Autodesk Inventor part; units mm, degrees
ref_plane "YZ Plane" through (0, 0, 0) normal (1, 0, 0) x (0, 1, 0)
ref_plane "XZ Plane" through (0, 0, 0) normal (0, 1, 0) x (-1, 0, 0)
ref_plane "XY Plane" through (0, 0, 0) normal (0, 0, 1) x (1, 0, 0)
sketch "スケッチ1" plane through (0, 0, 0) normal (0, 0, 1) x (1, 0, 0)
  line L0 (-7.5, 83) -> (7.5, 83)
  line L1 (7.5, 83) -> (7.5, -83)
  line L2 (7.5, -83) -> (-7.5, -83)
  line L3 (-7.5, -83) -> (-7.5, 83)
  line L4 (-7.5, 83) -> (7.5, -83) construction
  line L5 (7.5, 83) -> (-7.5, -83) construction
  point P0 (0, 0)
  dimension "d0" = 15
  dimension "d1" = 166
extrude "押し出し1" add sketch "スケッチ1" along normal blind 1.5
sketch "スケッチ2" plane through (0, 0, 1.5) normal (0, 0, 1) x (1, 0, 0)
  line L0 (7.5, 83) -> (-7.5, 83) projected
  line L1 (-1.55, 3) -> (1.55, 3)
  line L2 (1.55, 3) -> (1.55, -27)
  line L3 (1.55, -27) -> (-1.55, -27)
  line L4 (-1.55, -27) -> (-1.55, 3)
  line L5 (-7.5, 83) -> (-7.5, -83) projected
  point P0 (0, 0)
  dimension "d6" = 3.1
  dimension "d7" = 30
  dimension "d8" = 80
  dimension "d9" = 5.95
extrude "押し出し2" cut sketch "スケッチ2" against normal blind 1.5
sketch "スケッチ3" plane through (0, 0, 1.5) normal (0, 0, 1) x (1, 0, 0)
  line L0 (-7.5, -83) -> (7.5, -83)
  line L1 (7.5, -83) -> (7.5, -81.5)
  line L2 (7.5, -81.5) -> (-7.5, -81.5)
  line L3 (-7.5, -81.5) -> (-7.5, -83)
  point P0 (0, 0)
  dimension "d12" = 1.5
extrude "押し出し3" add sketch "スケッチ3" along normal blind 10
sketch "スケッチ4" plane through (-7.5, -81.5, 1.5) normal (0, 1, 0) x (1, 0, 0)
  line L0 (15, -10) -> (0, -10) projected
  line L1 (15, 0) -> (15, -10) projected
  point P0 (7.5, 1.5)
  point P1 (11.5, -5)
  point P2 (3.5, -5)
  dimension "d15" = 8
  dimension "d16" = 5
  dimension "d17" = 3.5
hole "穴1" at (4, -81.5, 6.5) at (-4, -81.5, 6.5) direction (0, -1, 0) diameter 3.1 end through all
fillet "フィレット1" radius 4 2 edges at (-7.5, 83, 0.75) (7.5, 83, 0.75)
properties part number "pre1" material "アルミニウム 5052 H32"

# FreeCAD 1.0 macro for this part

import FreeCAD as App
import Part
import Sketcher
from FreeCAD import Vector


def edges_at(feature, points):
    """Names of the edges that pass closest to the given points."""
    edges = feature.Shape.Edges
    near = lambda p: min(range(len(edges)), key=lambda i: edges[i].distToShape(Part.Vertex(*p))[0])
    return sorted({f"Edge{near(p) + 1}" for p in points})

doc = App.newDocument("Part")
body = doc.addObject("PartDesign::Body", "Body")

sketch1 = body.newObject("Sketcher::SketchObject", "Sketch")
sketch1.AttachmentSupport = (doc.getObject("XY_Plane"), [""])
sketch1.MapMode = "FlatFace"
sketch1.addGeometry([
    Part.LineSegment(Vector(8, 83, 0), Vector(-8, 83, 0)),
    Part.LineSegment(Vector(-8, 83, 0), Vector(-8, -83, 0)),
    Part.LineSegment(Vector(-8, -83, 0), Vector(8, -83, 0)),
    Part.LineSegment(Vector(8, -83, 0), Vector(8, 83, 0)),
], False)
sketch1.addConstraint([
    Sketcher.Constraint("Coincident", 0, 2, 1, 1),
    Sketcher.Constraint("Coincident", 1, 2, 2, 1),
    Sketcher.Constraint("Coincident", 2, 2, 3, 1),
    Sketcher.Constraint("Coincident", 3, 2, 0, 1),
    Sketcher.Constraint("Horizontal", 0),
    Sketcher.Constraint("Vertical", 1),
    Sketcher.Constraint("Horizontal", 2),
    Sketcher.Constraint("Vertical", 3),
    Sketcher.Constraint("Symmetric", 0, 2, 2, 2, -1, 1),
    Sketcher.Constraint("DistanceX", 0, 2, 0, 1, 15.0),
    Sketcher.Constraint("DistanceY", 1, 2, 1, 1, 166.0),
])
pad1 = body.newObject("PartDesign::Pad", "Pad")
pad1.Profile = sketch1
pad1.Length = 1.5

sketch2 = body.newObject("Sketcher::SketchObject", "Sketch001")
sketch2.AttachmentSupport = (doc.getObject("XY_Plane"), [""])
sketch2.MapMode = "FlatFace"
sketch2.AttachmentOffset = App.Placement(Vector(0, 0, 1.5), App.Rotation())
sketch2.addGeometry([
    Part.LineSegment(Vector(1.6, 3, 0), Vector(-1.6, 3, 0)),
    Part.LineSegment(Vector(-1.6, 3, 0), Vector(-1.6, -27, 0)),
    Part.LineSegment(Vector(-1.6, -27, 0), Vector(1.6, -27, 0)),
    Part.LineSegment(Vector(1.6, -27, 0), Vector(1.6, 3, 0)),
], False)
sketch2.addConstraint([
    Sketcher.Constraint("Coincident", 0, 2, 1, 1),
    Sketcher.Constraint("Coincident", 1, 2, 2, 1),
    Sketcher.Constraint("Coincident", 2, 2, 3, 1),
    Sketcher.Constraint("Coincident", 3, 2, 0, 1),
    Sketcher.Constraint("Horizontal", 0),
    Sketcher.Constraint("Vertical", 1),
    Sketcher.Constraint("Horizontal", 2),
    Sketcher.Constraint("Vertical", 3),
    Sketcher.Constraint("DistanceY", 1, 2, 1, 1, 30.0),
    Sketcher.Constraint("DistanceX", 0, 2, 0, 1, 3.1),
    Sketcher.Constraint("DistanceY", -1, 1, 0, 2, 3.0),
    Sketcher.Constraint("DistanceX", 0, 2, -1, 1, 1.55),
])
pocket1 = body.newObject("PartDesign::Pocket", "Pocket")
pocket1.Profile = sketch2
pocket1.Length = 1.5

sketch3 = body.newObject("Sketcher::SketchObject", "Sketch002")
sketch3.AttachmentSupport = (doc.getObject("XY_Plane"), [""])
sketch3.MapMode = "FlatFace"
sketch3.AttachmentOffset = App.Placement(Vector(0, 0, 1.5), App.Rotation())
sketch3.addGeometry([
    Part.LineSegment(Vector(-7.5, -81.5, 0), Vector(-7.5, -83, 0)),
    Part.LineSegment(Vector(-7.5, -83, 0), Vector(7.5, -83, 0)),
    Part.LineSegment(Vector(7.5, -83, 0), Vector(7.5, -81.5, 0)),
    Part.LineSegment(Vector(7.5, -81.5, 0), Vector(-7.5, -81.5, 0)),
], False)
sketch3.addConstraint([
    Sketcher.Constraint("Coincident", 0, 2, 1, 1),
    Sketcher.Constraint("Coincident", 1, 2, 2, 1),
    Sketcher.Constraint("Coincident", 2, 2, 3, 1),
    Sketcher.Constraint("Coincident", 3, 2, 0, 1),
    Sketcher.Constraint("Vertical", 0),
    Sketcher.Constraint("Horizontal", 1),
    Sketcher.Constraint("Vertical", 2),
    Sketcher.Constraint("Horizontal", 3),
    Sketcher.Constraint("DistanceY", 0, 2, 0, 1, 1.5),
    Sketcher.Constraint("DistanceX", 1, 1, 1, 2, 15.0),
    Sketcher.Constraint("DistanceY", 0, 2, -1, 1, 83.0),
    Sketcher.Constraint("DistanceX", 0, 2, -1, 1, 7.5),
])
pad2 = body.newObject("PartDesign::Pad", "Pad001")
pad2.Profile = sketch3
pad2.Length = 10

sketch4 = body.newObject("Sketcher::SketchObject", "Sketch003")
sketch4.AttachmentSupport = (doc.getObject("XZ_Plane"), [""])
sketch4.MapMode = "FlatFace"
sketch4.AttachmentOffset = App.Placement(Vector(0, 0, 81.5), App.Rotation())
sketch4.addGeometry([
    Part.Circle(Vector(4, 6.5, 0), Vector(0, 0, 1), 1.6),
    Part.Circle(Vector(-4, 6.5, 0), Vector(0, 0, 1), 1.6),
], False)
sketch4.addConstraint([
    Sketcher.Constraint("Equal", 0, 1),
    Sketcher.Constraint("Symmetric", 0, 3, 1, 3, -2),
    Sketcher.Constraint("Diameter", 0, 3.1),
    Sketcher.Constraint("DistanceX", -1, 1, 0, 3, 4.0),
    Sketcher.Constraint("DistanceY", -1, 1, 0, 3, 6.5),
])
doc.recompute()
hole = body.newObject("PartDesign::Hole", "Hole")
hole.Profile = sketch4
hole.ThreadType = "None"
hole.Diameter = 3.1
hole.DepthType = "ThroughAll"
hole.Reversed = True
doc.recompute()

fillet = body.newObject("PartDesign::Fillet", "Fillet")
fillet.Base = (hole, edges_at(hole, [(-7.5, 83, 0.75), (7.5, 83, 0.75)]))
fillet.Radius = 4

doc.recompute()
